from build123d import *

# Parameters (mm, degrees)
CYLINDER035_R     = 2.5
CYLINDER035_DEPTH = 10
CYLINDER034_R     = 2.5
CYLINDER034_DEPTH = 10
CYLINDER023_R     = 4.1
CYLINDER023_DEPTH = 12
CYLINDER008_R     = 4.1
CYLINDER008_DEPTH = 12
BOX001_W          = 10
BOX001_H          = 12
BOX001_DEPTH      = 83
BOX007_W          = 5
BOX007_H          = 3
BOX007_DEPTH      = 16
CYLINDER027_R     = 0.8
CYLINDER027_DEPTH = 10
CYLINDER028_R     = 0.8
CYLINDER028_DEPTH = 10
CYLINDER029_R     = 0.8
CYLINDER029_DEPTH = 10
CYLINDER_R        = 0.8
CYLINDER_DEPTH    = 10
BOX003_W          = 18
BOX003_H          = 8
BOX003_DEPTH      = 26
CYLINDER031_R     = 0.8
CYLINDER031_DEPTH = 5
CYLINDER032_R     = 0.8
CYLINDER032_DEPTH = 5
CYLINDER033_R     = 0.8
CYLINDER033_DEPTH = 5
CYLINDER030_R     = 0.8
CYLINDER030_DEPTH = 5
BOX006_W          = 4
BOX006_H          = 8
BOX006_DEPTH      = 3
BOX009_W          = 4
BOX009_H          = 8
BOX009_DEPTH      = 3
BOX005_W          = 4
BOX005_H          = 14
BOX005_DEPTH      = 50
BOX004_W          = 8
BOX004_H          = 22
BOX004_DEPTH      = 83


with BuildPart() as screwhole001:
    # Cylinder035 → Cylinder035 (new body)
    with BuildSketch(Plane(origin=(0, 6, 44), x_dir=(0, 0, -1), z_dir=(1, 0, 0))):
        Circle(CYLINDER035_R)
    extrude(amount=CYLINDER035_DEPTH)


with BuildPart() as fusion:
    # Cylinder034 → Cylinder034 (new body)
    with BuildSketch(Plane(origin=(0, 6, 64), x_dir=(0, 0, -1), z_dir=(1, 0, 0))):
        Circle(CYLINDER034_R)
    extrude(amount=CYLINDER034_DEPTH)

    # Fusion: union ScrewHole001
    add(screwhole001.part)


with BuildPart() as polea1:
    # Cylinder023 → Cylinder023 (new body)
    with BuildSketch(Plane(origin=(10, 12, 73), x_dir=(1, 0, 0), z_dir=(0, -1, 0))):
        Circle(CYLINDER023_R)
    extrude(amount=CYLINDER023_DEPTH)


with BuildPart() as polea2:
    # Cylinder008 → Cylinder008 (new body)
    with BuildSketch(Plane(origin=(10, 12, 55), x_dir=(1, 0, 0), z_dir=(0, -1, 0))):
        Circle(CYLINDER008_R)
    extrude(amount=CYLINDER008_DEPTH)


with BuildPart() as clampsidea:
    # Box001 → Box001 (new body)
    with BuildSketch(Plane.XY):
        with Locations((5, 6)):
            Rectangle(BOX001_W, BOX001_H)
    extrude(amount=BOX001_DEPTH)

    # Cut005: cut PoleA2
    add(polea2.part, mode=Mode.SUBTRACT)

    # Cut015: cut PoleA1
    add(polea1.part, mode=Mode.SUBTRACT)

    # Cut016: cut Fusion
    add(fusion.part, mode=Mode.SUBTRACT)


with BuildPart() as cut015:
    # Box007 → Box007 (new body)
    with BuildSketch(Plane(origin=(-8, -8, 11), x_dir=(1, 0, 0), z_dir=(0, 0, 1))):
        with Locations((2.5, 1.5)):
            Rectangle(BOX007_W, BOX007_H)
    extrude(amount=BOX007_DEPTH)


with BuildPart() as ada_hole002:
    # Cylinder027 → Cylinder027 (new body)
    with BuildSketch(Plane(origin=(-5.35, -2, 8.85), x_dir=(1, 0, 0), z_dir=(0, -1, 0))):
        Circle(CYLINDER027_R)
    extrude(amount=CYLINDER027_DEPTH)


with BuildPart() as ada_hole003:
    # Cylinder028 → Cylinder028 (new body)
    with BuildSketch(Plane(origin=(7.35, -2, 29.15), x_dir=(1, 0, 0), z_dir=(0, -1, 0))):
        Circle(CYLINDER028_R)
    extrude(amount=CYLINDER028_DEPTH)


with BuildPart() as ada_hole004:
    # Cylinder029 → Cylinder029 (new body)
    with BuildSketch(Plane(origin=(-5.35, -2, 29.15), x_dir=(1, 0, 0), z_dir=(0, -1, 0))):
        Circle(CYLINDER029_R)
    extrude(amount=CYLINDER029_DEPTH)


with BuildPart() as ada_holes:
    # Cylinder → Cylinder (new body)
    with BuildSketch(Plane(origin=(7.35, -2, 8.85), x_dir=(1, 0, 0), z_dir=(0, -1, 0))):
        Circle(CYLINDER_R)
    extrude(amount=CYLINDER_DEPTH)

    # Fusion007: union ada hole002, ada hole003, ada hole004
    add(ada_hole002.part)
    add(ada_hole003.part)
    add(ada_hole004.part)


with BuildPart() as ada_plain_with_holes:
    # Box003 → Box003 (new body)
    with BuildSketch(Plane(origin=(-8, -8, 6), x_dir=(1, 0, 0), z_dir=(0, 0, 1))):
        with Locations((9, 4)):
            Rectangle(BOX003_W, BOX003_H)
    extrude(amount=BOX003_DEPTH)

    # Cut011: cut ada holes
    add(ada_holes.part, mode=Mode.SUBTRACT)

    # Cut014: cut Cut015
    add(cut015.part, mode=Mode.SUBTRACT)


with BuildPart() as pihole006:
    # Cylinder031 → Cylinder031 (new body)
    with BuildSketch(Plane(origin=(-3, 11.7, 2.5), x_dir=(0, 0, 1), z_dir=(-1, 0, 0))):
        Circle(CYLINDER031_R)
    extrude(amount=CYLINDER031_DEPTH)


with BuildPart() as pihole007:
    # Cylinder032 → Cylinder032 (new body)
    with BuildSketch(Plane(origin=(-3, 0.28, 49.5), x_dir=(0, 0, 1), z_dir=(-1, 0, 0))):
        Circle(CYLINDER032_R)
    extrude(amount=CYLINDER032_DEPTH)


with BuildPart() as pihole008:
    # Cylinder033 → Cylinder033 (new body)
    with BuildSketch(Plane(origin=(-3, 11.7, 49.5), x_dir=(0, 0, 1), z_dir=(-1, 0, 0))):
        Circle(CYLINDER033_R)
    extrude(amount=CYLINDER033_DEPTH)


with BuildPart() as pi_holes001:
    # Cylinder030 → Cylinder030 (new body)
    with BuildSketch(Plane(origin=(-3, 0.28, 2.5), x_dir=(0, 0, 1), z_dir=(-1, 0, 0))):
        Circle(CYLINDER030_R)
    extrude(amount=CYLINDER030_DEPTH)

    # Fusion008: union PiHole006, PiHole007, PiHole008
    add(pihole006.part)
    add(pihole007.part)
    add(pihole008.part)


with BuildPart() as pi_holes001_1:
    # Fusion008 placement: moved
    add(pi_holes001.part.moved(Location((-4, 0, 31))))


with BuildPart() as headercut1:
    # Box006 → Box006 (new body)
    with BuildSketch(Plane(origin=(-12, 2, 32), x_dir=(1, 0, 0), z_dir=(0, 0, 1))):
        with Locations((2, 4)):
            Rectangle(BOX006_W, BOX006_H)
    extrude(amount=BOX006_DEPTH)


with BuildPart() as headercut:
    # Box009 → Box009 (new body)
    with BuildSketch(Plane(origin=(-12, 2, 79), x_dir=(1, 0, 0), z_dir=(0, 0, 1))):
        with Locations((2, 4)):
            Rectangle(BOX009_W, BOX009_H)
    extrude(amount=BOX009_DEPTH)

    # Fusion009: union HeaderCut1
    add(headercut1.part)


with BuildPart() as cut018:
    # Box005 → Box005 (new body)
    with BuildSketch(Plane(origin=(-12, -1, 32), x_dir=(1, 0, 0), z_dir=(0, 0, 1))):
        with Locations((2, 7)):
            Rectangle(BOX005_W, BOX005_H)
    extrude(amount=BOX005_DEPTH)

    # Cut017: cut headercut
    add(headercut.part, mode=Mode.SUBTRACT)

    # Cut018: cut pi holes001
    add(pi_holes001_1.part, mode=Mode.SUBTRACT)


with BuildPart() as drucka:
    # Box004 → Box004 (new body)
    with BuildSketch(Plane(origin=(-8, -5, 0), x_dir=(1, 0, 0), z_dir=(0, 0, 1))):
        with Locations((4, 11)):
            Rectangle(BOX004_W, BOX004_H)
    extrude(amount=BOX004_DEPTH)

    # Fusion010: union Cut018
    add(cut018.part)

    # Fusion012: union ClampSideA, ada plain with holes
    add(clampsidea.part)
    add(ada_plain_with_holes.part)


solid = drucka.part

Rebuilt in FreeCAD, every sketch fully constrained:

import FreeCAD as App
import Part
import Sketcher


def add_polygon(sketch, points):
    """Adds a closed chain of lines whose ends are joined by coincident constraints."""
    first, n = sketch.GeometryCount, len(points)
    for a, b in zip(points, points[1:] + points[:1]):
        sketch.addGeometry(Part.LineSegment(App.Vector(*a, 0), App.Vector(*b, 0)), False)
    for i in range(n):
        sketch.addConstraint(Sketcher.Constraint("Coincident", first + i, 2, first + (i + 1) % n, 1))

doc = App.newDocument("Part")
params = doc.addObject("Spreadsheet::Sheet", "Params")
for row, (alias, value) in enumerate([
    ("sketch1_diameter", "5 mm"),
    ("pad1_length", "10 mm"),
    ("sketch2_diameter", "5 mm"),
    ("pad2_length", "10 mm"),
    ("sketch3_diameter", "8.2 mm"),
    ("pad3_length", "12 mm"),
    ("sketch4_diameter", "8.2 mm"),
    ("pad4_length", "12 mm"),
    ("sketch5_width", "10 mm"),
    ("sketch5_height", "12 mm"),
    ("pad5_length", "83 mm"),
    ("sketch6_width", "5 mm"),
    ("sketch6_height", "3 mm"),
    ("pad6_length", "16 mm"),
    ("sketch7_diameter", "1.6 mm"),
    ("pad7_length", "10 mm"),
    ("sketch8_diameter", "1.6 mm"),
    ("pad8_length", "10 mm"),
    ("sketch9_diameter", "1.6 mm"),
    ("pad9_length", "10 mm"),
    ("sketch10_diameter", "1.6 mm"),
    ("pad10_length", "10 mm"),
    ("sketch11_width", "18 mm"),
    ("sketch11_height", "8 mm"),
    ("pad11_length", "26 mm"),
    ("sketch12_diameter", "1.6 mm"),
    ("pad12_length", "5 mm"),
    ("sketch13_diameter", "1.6 mm"),
    ("pad13_length", "5 mm"),
    ("sketch14_diameter", "1.6 mm"),
    ("pad14_length", "5 mm"),
    ("sketch15_diameter", "1.6 mm"),
    ("pad15_length", "5 mm"),
    ("sketch16_width", "4 mm"),
    ("sketch16_height", "8 mm"),
    ("pad16_length", "3 mm"),
    ("sketch17_width", "4 mm"),
    ("sketch17_height", "8 mm"),
    ("pad17_length", "3 mm"),
    ("sketch18_width", "4 mm"),
    ("sketch18_height", "14 mm"),
    ("pad18_length", "50 mm"),
    ("sketch19_width", "8 mm"),
    ("sketch19_height", "22 mm"),
    ("pad19_length", "83 mm"),
], start=1):
    params.set(f"A{row}", alias)
    params.set(f"B{row}", "=" + value)
    params.setAlias(f"B{row}", alias)

body = doc.addObject("PartDesign::Body", "Body")

# Sketch on YZ plane
sketch1 = doc.addObject("Sketcher::SketchObject", "Sketch")
body.addObject(sketch1)
sketch1.AttachmentSupport = (doc.YZ_Plane, [""])
sketch1.MapMode = "FlatFace"
sketch1.addGeometry(Part.Circle(App.Vector(6, 44, 0), App.Vector(0, 0, 1), 2.5), False)
sketch1.addConstraint([
    Sketcher.Constraint("Diameter", 0, 5.0),
    Sketcher.Constraint("DistanceX", -1, 1, 0, 3, 6.0),
    Sketcher.Constraint("DistanceY", -1, 1, 0, 3, 44.0),
])
sketch1.setExpression("Constraints[0]", "Params.sketch1_diameter")
pad1 = doc.addObject("PartDesign::Pad", "Pad")
body.addObject(pad1)
pad1.Profile = sketch1
pad1.setExpression("Length", "Params.pad1_length")
body2 = doc.addObject("PartDesign::Body", "Body001")
body2.AllowCompound = True

# Sketch on YZ plane
sketch2 = doc.addObject("Sketcher::SketchObject", "Sketch001")
body2.addObject(sketch2)
sketch2.AttachmentSupport = (doc.getObject("YZ_Plane001"), [""])
sketch2.MapMode = "FlatFace"
sketch2.addGeometry(Part.Circle(App.Vector(6, 64, 0), App.Vector(0, 0, 1), 2.5), False)
sketch2.addConstraint([
    Sketcher.Constraint("Diameter", 0, 5.0),
    Sketcher.Constraint("DistanceX", -1, 1, 0, 3, 6.0),
    Sketcher.Constraint("DistanceY", -1, 1, 0, 3, 64.0),
])
sketch2.setExpression("Constraints[0]", "Params.sketch2_diameter")
pad2 = doc.addObject("PartDesign::Pad", "Pad001")
body2.addObject(pad2)
pad2.Profile = sketch2
pad2.setExpression("Length", "Params.pad2_length")
doc.recompute()

boolean = doc.addObject("PartDesign::Boolean", "Boolean")
body2.addObject(boolean)
boolean.Type = "Fuse"
boolean.addObjects([body])
body3 = doc.addObject("PartDesign::Body", "Body002")

# Sketch on XZ plane
sketch3 = doc.addObject("Sketcher::SketchObject", "Sketch002")
body3.addObject(sketch3)
sketch3.AttachmentSupport = (doc.getObject("XZ_Plane002"), [""])
sketch3.MapMode = "FlatFace"
sketch3.AttachmentOffset = App.Placement(App.Vector(0, 0, -12), App.Rotation())
sketch3.addGeometry(Part.Circle(App.Vector(10, 73, 0), App.Vector(0, 0, 1), 4.1), False)
sketch3.addConstraint([
    Sketcher.Constraint("Diameter", 0, 8.2),
    Sketcher.Constraint("DistanceX", -1, 1, 0, 3, 10.0),
    Sketcher.Constraint("DistanceY", -1, 1, 0, 3, 73.0),
])
sketch3.setExpression("Constraints[0]", "Params.sketch3_diameter")
pad3 = doc.addObject("PartDesign::Pad", "Pad002")
body3.addObject(pad3)
pad3.Profile = sketch3
pad3.setExpression("Length", "Params.pad3_length")
body4 = doc.addObject("PartDesign::Body", "Body003")

# Sketch on XZ plane
sketch4 = doc.addObject("Sketcher::SketchObject", "Sketch003")
body4.addObject(sketch4)
sketch4.AttachmentSupport = (doc.getObject("XZ_Plane003"), [""])
sketch4.MapMode = "FlatFace"
sketch4.AttachmentOffset = App.Placement(App.Vector(0, 0, -12), App.Rotation())
sketch4.addGeometry(Part.Circle(App.Vector(10, 55, 0), App.Vector(0, 0, 1), 4.1), False)
sketch4.addConstraint([
    Sketcher.Constraint("Diameter", 0, 8.2),
    Sketcher.Constraint("DistanceX", -1, 1, 0, 3, 10.0),
    Sketcher.Constraint("DistanceY", -1, 1, 0, 3, 55.0),
])
sketch4.setExpression("Constraints[0]", "Params.sketch4_diameter")
pad4 = doc.addObject("PartDesign::Pad", "Pad003")
body4.addObject(pad4)
pad4.Profile = sketch4
pad4.setExpression("Length", "Params.pad4_length")
body5 = doc.addObject("PartDesign::Body", "Body004")

# Sketch on XY plane
sketch5 = doc.addObject("Sketcher::SketchObject", "Sketch004")
body5.addObject(sketch5)
sketch5.AttachmentSupport = (doc.getObject("XY_Plane004"), [""])
sketch5.MapMode = "FlatFace"
add_polygon(sketch5, [(0, 12), (0, 0), (10, 0), (10, 12)])  # lines 0-3
sketch5.addConstraint([
    Sketcher.Constraint("Vertical", 0),
    Sketcher.Constraint("Horizontal", 1),
    Sketcher.Constraint("Vertical", 2),
    Sketcher.Constraint("Horizontal", 3),
    Sketcher.Constraint("Coincident", 0, 2, -1, 1),
    Sketcher.Constraint("DistanceX", 1, 1, 1, 2, 10.0),
    Sketcher.Constraint("DistanceY", 0, 2, 0, 1, 12.0),
])
sketch5.setExpression("Constraints[9]", "Params.sketch5_width")
sketch5.setExpression("Constraints[10]", "Params.sketch5_height")
pad5 = doc.addObject("PartDesign::Pad", "Pad004")
body5.addObject(pad5)
pad5.Profile = sketch5
pad5.setExpression("Length", "Params.pad5_length")
doc.recompute()

boolean2 = doc.addObject("PartDesign::Boolean", "Boolean001")
body5.addObject(boolean2)
boolean2.Type = "Cut"
boolean2.addObjects([body4])
doc.recompute()

boolean3 = doc.addObject("PartDesign::Boolean", "Boolean002")
body5.addObject(boolean3)
boolean3.Type = "Cut"
boolean3.addObjects([body3])
doc.recompute()

boolean4 = doc.addObject("PartDesign::Boolean", "Boolean003")
body5.addObject(boolean4)
boolean4.Type = "Cut"
boolean4.addObjects([body2])
body6 = doc.addObject("PartDesign::Body", "Body005")

# Sketch on XY plane
sketch6 = doc.addObject("Sketcher::SketchObject", "Sketch005")
body6.addObject(sketch6)
sketch6.AttachmentSupport = (doc.getObject("XY_Plane005"), [""])
sketch6.MapMode = "FlatFace"
sketch6.AttachmentOffset = App.Placement(App.Vector(0, 0, 11), App.Rotation())
add_polygon(sketch6, [(-8, -5), (-8, -8), (-3, -8), (-3, -5)])  # lines 0-3
sketch6.addConstraint([
    Sketcher.Constraint("Vertical", 0),
    Sketcher.Constraint("Horizontal", 1),
    Sketcher.Constraint("Vertical", 2),
    Sketcher.Constraint("Horizontal", 3),
    Sketcher.Constraint("DistanceX", 1, 1, 1, 2, 5.0),
    Sketcher.Constraint("DistanceY", 0, 2, 0, 1, 3.0),
    Sketcher.Constraint("DistanceX", 0, 2, -1, 1, 8.0),
    Sketcher.Constraint("DistanceY", 0, 2, -1, 1, 8.0),
])
sketch6.setExpression("Constraints[8]", "Params.sketch6_width")
sketch6.setExpression("Constraints[9]", "Params.sketch6_height")
pad6 = doc.addObject("PartDesign::Pad", "Pad005")
body6.addObject(pad6)
pad6.Profile = sketch6
pad6.setExpression("Length", "Params.pad6_length")
body7 = doc.addObject("PartDesign::Body", "Body006")

# Sketch on XZ plane
sketch7 = doc.addObject("Sketcher::SketchObject", "Sketch006")
body7.addObject(sketch7)
sketch7.AttachmentSupport = (doc.getObject("XZ_Plane006"), [""])
sketch7.MapMode = "FlatFace"
sketch7.AttachmentOffset = App.Placement(App.Vector(0, 0, 2), App.Rotation())
sketch7.addGeometry(Part.Circle(App.Vector(-5.3, 8.8, 0), App.Vector(0, 0, 1), 0.8), False)
sketch7.addConstraint([
    Sketcher.Constraint("Diameter", 0, 1.6),
    Sketcher.Constraint("DistanceX", 0, 3, -1, 1, 5.35),
    Sketcher.Constraint("DistanceY", -1, 1, 0, 3, 8.85),
])
sketch7.setExpression("Constraints[0]", "Params.sketch7_diameter")
pad7 = doc.addObject("PartDesign::Pad", "Pad006")
body7.addObject(pad7)
pad7.Profile = sketch7
pad7.setExpression("Length", "Params.pad7_length")
body8 = doc.addObject("PartDesign::Body", "Body007")

# Sketch on XZ plane
sketch8 = doc.addObject("Sketcher::SketchObject", "Sketch007")
body8.addObject(sketch8)
sketch8.AttachmentSupport = (doc.getObject("XZ_Plane007"), [""])
sketch8.MapMode = "FlatFace"
sketch8.AttachmentOffset = App.Placement(App.Vector(0, 0, 2), App.Rotation())
sketch8.addGeometry(Part.Circle(App.Vector(7.3, 29.1, 0), App.Vector(0, 0, 1), 0.8), False)
sketch8.addConstraint([
    Sketcher.Constraint("Diameter", 0, 1.6),
    Sketcher.Constraint("DistanceX", -1, 1, 0, 3, 7.35),
    Sketcher.Constraint("DistanceY", -1, 1, 0, 3, 29.15),
])
sketch8.setExpression("Constraints[0]", "Params.sketch8_diameter")
pad8 = doc.addObject("PartDesign::Pad", "Pad007")
body8.addObject(pad8)
pad8.Profile = sketch8
pad8.setExpression("Length", "Params.pad8_length")
body9 = doc.addObject("PartDesign::Body", "Body008")

# Sketch on XZ plane
sketch9 = doc.addObject("Sketcher::SketchObject", "Sketch008")
body9.addObject(sketch9)
sketch9.AttachmentSupport = (doc.getObject("XZ_Plane008"), [""])
sketch9.MapMode = "FlatFace"
sketch9.AttachmentOffset = App.Placement(App.Vector(0, 0, 2), App.Rotation())
sketch9.addGeometry(Part.Circle(App.Vector(-5.3, 29.1, 0), App.Vector(0, 0, 1), 0.8), False)
sketch9.addConstraint([
    Sketcher.Constraint("Diameter", 0, 1.6),
    Sketcher.Constraint("DistanceX", 0, 3, -1, 1, 5.35),
    Sketcher.Constraint("DistanceY", -1, 1, 0, 3, 29.15),
])
sketch9.setExpression("Constraints[0]", "Params.sketch9_diameter")
pad9 = doc.addObject("PartDesign::Pad", "Pad008")
body9.addObject(pad9)
pad9.Profile = sketch9
pad9.setExpression("Length", "Params.pad9_length")
body10 = doc.addObject("PartDesign::Body", "Body009")
body10.AllowCompound = True

# Sketch on XZ plane
sketch10 = doc.addObject("Sketcher::SketchObject", "Sketch009")
body10.addObject(sketch10)
sketch10.AttachmentSupport = (doc.getObject("XZ_Plane009"), [""])
sketch10.MapMode = "FlatFace"
sketch10.AttachmentOffset = App.Placement(App.Vector(0, 0, 2), App.Rotation())
sketch10.addGeometry(Part.Circle(App.Vector(7.3, 8.8, 0), App.Vector(0, 0, 1), 0.8), False)
sketch10.addConstraint([
    Sketcher.Constraint("Diameter", 0, 1.6),
    Sketcher.Constraint("DistanceX", -1, 1, 0, 3, 7.35),
    Sketcher.Constraint("DistanceY", -1, 1, 0, 3, 8.85),
])
sketch10.setExpression("Constraints[0]", "Params.sketch10_diameter")
pad10 = doc.addObject("PartDesign::Pad", "Pad009")
body10.addObject(pad10)
pad10.Profile = sketch10
pad10.setExpression("Length", "Params.pad10_length")
doc.recompute()

boolean5 = doc.addObject("PartDesign::Boolean", "Boolean004")
body10.addObject(boolean5)
boolean5.Type = "Fuse"
boolean5.addObjects([body7])
doc.recompute()

boolean6 = doc.addObject("PartDesign::Boolean", "Boolean005")
body10.addObject(boolean6)
boolean6.Type = "Fuse"
boolean6.addObjects([body8])
doc.recompute()

boolean7 = doc.addObject("PartDesign::Boolean", "Boolean006")
body10.addObject(boolean7)
boolean7.Type = "Fuse"
boolean7.addObjects([body9])
body11 = doc.addObject("PartDesign::Body", "Body010")

# Sketch on XY plane
sketch11 = doc.addObject("Sketcher::SketchObject", "Sketch010")
body11.addObject(sketch11)
sketch11.AttachmentSupport = (doc.getObject("XY_Plane010"), [""])
sketch11.MapMode = "FlatFace"
sketch11.AttachmentOffset = App.Placement(App.Vector(0, 0, 6), App.Rotation())
add_polygon(sketch11, [(-8, 0), (-8, -8), (10, -8), (10, 0)])  # lines 0-3
sketch11.addConstraint([
    Sketcher.Constraint("Vertical", 0),
    Sketcher.Constraint("Horizontal", 1),
    Sketcher.Constraint("Vertical", 2),
    Sketcher.Constraint("Horizontal", 3),
    Sketcher.Constraint("PointOnObject", 2, 2, -1),
    Sketcher.Constraint("DistanceX", 1, 1, 1, 2, 18.0),
    Sketcher.Constraint("DistanceY", 0, 2, 0, 1, 8.0),
    Sketcher.Constraint("DistanceX", 0, 2, -1, 1, 8.0),
])
sketch11.setExpression("Constraints[9]", "Params.sketch11_width")
sketch11.setExpression("Constraints[10]", "Params.sketch11_height")
pad11 = doc.addObject("PartDesign::Pad", "Pad010")
body11.addObject(pad11)
pad11.Profile = sketch11
pad11.setExpression("Length", "Params.pad11_length")
doc.recompute()

boolean8 = doc.addObject("PartDesign::Boolean", "Boolean007")
body11.addObject(boolean8)
boolean8.Type = "Cut"
boolean8.addObjects([body10])
doc.recompute()

boolean9 = doc.addObject("PartDesign::Boolean", "Boolean008")
body11.addObject(boolean9)
boolean9.Type = "Cut"
boolean9.addObjects([body6])
body12 = doc.addObject("PartDesign::Body", "Body011")

# Sketch on YZ plane
sketch12 = doc.addObject("Sketcher::SketchObject", "Sketch011")
body12.addObject(sketch12)
sketch12.AttachmentSupport = (doc.getObject("YZ_Plane011"), [""])
sketch12.MapMode = "FlatFace"
sketch12.AttachmentOffset = App.Placement(App.Vector(0, 0, -3), App.Rotation())
sketch12.addGeometry(Part.Circle(App.Vector(11.7, 2.5, 0), App.Vector(0, 0, 1), 0.8), False)
sketch12.addConstraint([
    Sketcher.Constraint("Diameter", 0, 1.6),
    Sketcher.Constraint("DistanceX", -1, 1, 0, 3, 11.7),
    Sketcher.Constraint("DistanceY", -1, 1, 0, 3, 2.5),
])
sketch12.setExpression("Constraints[0]", "Params.sketch12_diameter")
pad12 = doc.addObject("PartDesign::Pad", "Pad011")
body12.addObject(pad12)
pad12.Profile = sketch12
pad12.setExpression("Length", "Params.pad12_length")
pad12.Reversed = True
body13 = doc.addObject("PartDesign::Body", "Body012")

# Sketch on YZ plane
sketch13 = doc.addObject("Sketcher::SketchObject", "Sketch012")
body13.addObject(sketch13)
sketch13.AttachmentSupport = (doc.getObject("YZ_Plane012"), [""])
sketch13.MapMode = "FlatFace"
sketch13.AttachmentOffset = App.Placement(App.Vector(0, 0, -3), App.Rotation())
sketch13.addGeometry(Part.Circle(App.Vector(0.3, 49.5, 0), App.Vector(0, 0, 1), 0.8), False)
sketch13.addConstraint([
    Sketcher.Constraint("Diameter", 0, 1.6),
    Sketcher.Constraint("DistanceY", -1, 1, 0, 3, 49.5),
    Sketcher.Constraint("DistanceX", -1, 1, 0, 3, 0.28),
])
sketch13.setExpression("Constraints[0]", "Params.sketch13_diameter")
pad13 = doc.addObject("PartDesign::Pad", "Pad012")
body13.addObject(pad13)
pad13.Profile = sketch13
pad13.setExpression("Length", "Params.pad13_length")
pad13.Reversed = True
body14 = doc.addObject("PartDesign::Body", "Body013")

# Sketch on YZ plane
sketch14 = doc.addObject("Sketcher::SketchObject", "Sketch013")
body14.addObject(sketch14)
sketch14.AttachmentSupport = (doc.getObject("YZ_Plane013"), [""])
sketch14.MapMode = "FlatFace"
sketch14.AttachmentOffset = App.Placement(App.Vector(0, 0, -3), App.Rotation())
sketch14.addGeometry(Part.Circle(App.Vector(11.7, 49.5, 0), App.Vector(0, 0, 1), 0.8), False)
sketch14.addConstraint([
    Sketcher.Constraint("Diameter", 0, 1.6),
    Sketcher.Constraint("DistanceX", -1, 1, 0, 3, 11.7),
    Sketcher.Constraint("DistanceY", -1, 1, 0, 3, 49.5),
])
sketch14.setExpression("Constraints[0]", "Params.sketch14_diameter")
pad14 = doc.addObject("PartDesign::Pad", "Pad013")
body14.addObject(pad14)
pad14.Profile = sketch14
pad14.setExpression("Length", "Params.pad14_length")
pad14.Reversed = True
body15 = doc.addObject("PartDesign::Body", "Body014")
body15.AllowCompound = True

# Sketch on YZ plane
sketch15 = doc.addObject("Sketcher::SketchObject", "Sketch014")
body15.addObject(sketch15)
sketch15.AttachmentSupport = (doc.getObject("YZ_Plane014"), [""])
sketch15.MapMode = "FlatFace"
sketch15.AttachmentOffset = App.Placement(App.Vector(0, 0, -3), App.Rotation())
sketch15.addGeometry(Part.Circle(App.Vector(0.3, 2.5, 0), App.Vector(0, 0, 1), 0.8), False)
sketch15.addConstraint([
    Sketcher.Constraint("Diameter", 0, 1.6),
    Sketcher.Constraint("DistanceY", -1, 1, 0, 3, 2.5),
    Sketcher.Constraint("DistanceX", -1, 1, 0, 3, 0.28),
])
sketch15.setExpression("Constraints[0]", "Params.sketch15_diameter")
pad15 = doc.addObject("PartDesign::Pad", "Pad014")
body15.addObject(pad15)
pad15.Profile = sketch15
pad15.setExpression("Length", "Params.pad15_length")
pad15.Reversed = True
doc.recompute()

boolean10 = doc.addObject("PartDesign::Boolean", "Boolean009")
body15.addObject(boolean10)
boolean10.Type = "Fuse"
boolean10.addObjects([body12])
doc.recompute()

boolean11 = doc.addObject("PartDesign::Boolean", "Boolean010")
body15.addObject(boolean11)
boolean11.Type = "Fuse"
boolean11.addObjects([body13])
doc.recompute()

boolean12 = doc.addObject("PartDesign::Boolean", "Boolean011")
body15.addObject(boolean12)
boolean12.Type = "Fuse"
boolean12.addObjects([body14])
body16 = doc.addObject("PartDesign::Body", "Body015")
body16.AllowCompound = True
doc.recompute()

body15.Placement = App.Placement(App.Vector(-4, 0, 31), App.Rotation(App.Vector(0, 0, 1), 0))
boolean13 = doc.addObject("PartDesign::Boolean", "Boolean012")
body16.addObject(boolean13)
boolean13.Type = "Fuse"
boolean13.addObjects([body15])
body17 = doc.addObject("PartDesign::Body", "Body016")

# Sketch on XY plane
sketch16 = doc.addObject("Sketcher::SketchObject", "Sketch015")
body17.addObject(sketch16)
sketch16.AttachmentSupport = (doc.getObject("XY_Plane016"), [""])
sketch16.MapMode = "FlatFace"
sketch16.AttachmentOffset = App.Placement(App.Vector(0, 0, 32), App.Rotation())
add_polygon(sketch16, [(-12, 10), (-12, 2), (-8, 2), (-8, 10)])  # lines 0-3
sketch16.addConstraint([
    Sketcher.Constraint("Vertical", 0),
    Sketcher.Constraint("Horizontal", 1),
    Sketcher.Constraint("Vertical", 2),
    Sketcher.Constraint("Horizontal", 3),
    Sketcher.Constraint("DistanceX", 1, 1, 1, 2, 4.0),
    Sketcher.Constraint("DistanceY", 0, 2, 0, 1, 8.0),
    Sketcher.Constraint("DistanceX", 0, 2, -1, 1, 12.0),
    Sketcher.Constraint("DistanceY", -1, 1, 0, 2, 2.0),
])
sketch16.setExpression("Constraints[8]", "Params.sketch16_width")
sketch16.setExpression("Constraints[9]", "Params.sketch16_height")
pad16 = doc.addObject("PartDesign::Pad", "Pad015")
body17.addObject(pad16)
pad16.Profile = sketch16
pad16.setExpression("Length", "Params.pad16_length")
body18 = doc.addObject("PartDesign::Body", "Body017")
body18.AllowCompound = True

# Sketch on XY plane
sketch17 = doc.addObject("Sketcher::SketchObject", "Sketch016")
body18.addObject(sketch17)
sketch17.AttachmentSupport = (doc.getObject("XY_Plane017"), [""])
sketch17.MapMode = "FlatFace"
sketch17.AttachmentOffset = App.Placement(App.Vector(0, 0, 79), App.Rotation())
add_polygon(sketch17, [(-12, 10), (-12, 2), (-8, 2), (-8, 10)])  # lines 0-3
sketch17.addConstraint([
    Sketcher.Constraint("Vertical", 0),
    Sketcher.Constraint("Horizontal", 1),
    Sketcher.Constraint("Vertical", 2),
    Sketcher.Constraint("Horizontal", 3),
    Sketcher.Constraint("DistanceX", 1, 1, 1, 2, 4.0),
    Sketcher.Constraint("DistanceY", 0, 2, 0, 1, 8.0),
    Sketcher.Constraint("DistanceX", 0, 2, -1, 1, 12.0),
    Sketcher.Constraint("DistanceY", -1, 1, 0, 2, 2.0),
])
sketch17.setExpression("Constraints[8]", "Params.sketch17_width")
sketch17.setExpression("Constraints[9]", "Params.sketch17_height")
pad17 = doc.addObject("PartDesign::Pad", "Pad016")
body18.addObject(pad17)
pad17.Profile = sketch17
pad17.setExpression("Length", "Params.pad17_length")
doc.recompute()

boolean14 = doc.addObject("PartDesign::Boolean", "Boolean013")
body18.addObject(boolean14)
boolean14.Type = "Fuse"
boolean14.addObjects([body17])
body19 = doc.addObject("PartDesign::Body", "Body018")

# Sketch on XY plane
sketch18 = doc.addObject("Sketcher::SketchObject", "Sketch017")
body19.addObject(sketch18)
sketch18.AttachmentSupport = (doc.getObject("XY_Plane018"), [""])
sketch18.MapMode = "FlatFace"
sketch18.AttachmentOffset = App.Placement(App.Vector(0, 0, 32), App.Rotation())
add_polygon(sketch18, [(-12, 13), (-12, -1), (-8, -1), (-8, 13)])  # lines 0-3
sketch18.addConstraint([
    Sketcher.Constraint("Vertical", 0),
    Sketcher.Constraint("Horizontal", 1),
    Sketcher.Constraint("Vertical", 2),
    Sketcher.Constraint("Horizontal", 3),
    Sketcher.Constraint("DistanceX", 1, 1, 1, 2, 4.0),
    Sketcher.Constraint("DistanceY", 0, 2, 0, 1, 14.0),
    Sketcher.Constraint("DistanceX", 0, 2, -1, 1, 12.0),
    Sketcher.Constraint("DistanceY", 0, 2, -1, 1, 1.0),
])
sketch18.setExpression("Constraints[8]", "Params.sketch18_width")
sketch18.setExpression("Constraints[9]", "Params.sketch18_height")
pad18 = doc.addObject("PartDesign::Pad", "Pad017")
body19.addObject(pad18)
pad18.Profile = sketch18
pad18.setExpression("Length", "Params.pad18_length")
doc.recompute()

boolean15 = doc.addObject("PartDesign::Boolean", "Boolean014")
body19.addObject(boolean15)
boolean15.Type = "Cut"
boolean15.addObjects([body18])
doc.recompute()

boolean16 = doc.addObject("PartDesign::Boolean", "Boolean015")
body19.addObject(boolean16)
boolean16.Type = "Cut"
boolean16.addObjects([body16])
body20 = doc.addObject("PartDesign::Body", "Body019")

# Sketch on XY plane
sketch19 = doc.addObject("Sketcher::SketchObject", "Sketch018")
body20.addObject(sketch19)
sketch19.AttachmentSupport = (doc.getObject("XY_Plane019"), [""])
sketch19.MapMode = "FlatFace"
add_polygon(sketch19, [(-8, 17), (-8, -5), (0, -5), (0, 17)])  # lines 0-3
sketch19.addConstraint([
    Sketcher.Constraint("Vertical", 0),
    Sketcher.Constraint("Horizontal", 1),
    Sketcher.Constraint("Vertical", 2),
    Sketcher.Constraint("Horizontal", 3),
    Sketcher.Constraint("PointOnObject", 1, 2, -2),
    Sketcher.Constraint("DistanceX", 1, 1, 1, 2, 8.0),
    Sketcher.Constraint("DistanceY", 0, 2, 0, 1, 22.0),
    Sketcher.Constraint("DistanceY", 0, 2, -1, 1, 5.0),
])
sketch19.setExpression("Constraints[9]", "Params.sketch19_width")
sketch19.setExpression("Constraints[10]", "Params.sketch19_height")
pad19 = doc.addObject("PartDesign::Pad", "Pad018")
body20.addObject(pad19)
pad19.Profile = sketch19
pad19.setExpression("Length", "Params.pad19_length")
doc.recompute()

boolean17 = doc.addObject("PartDesign::Boolean", "Boolean016")
body20.addObject(boolean17)
boolean17.Type = "Fuse"
boolean17.addObjects([body19])
doc.recompute()

boolean18 = doc.addObject("PartDesign::Boolean", "Boolean017")
body20.addObject(boolean18)
boolean18.Type = "Fuse"
boolean18.addObjects([body5])
doc.recompute()

boolean19 = doc.addObject("PartDesign::Boolean", "Boolean018")
body20.addObject(boolean19)
boolean19.Type = "Fuse"
boolean19.addObjects([body11])

doc.recompute()
